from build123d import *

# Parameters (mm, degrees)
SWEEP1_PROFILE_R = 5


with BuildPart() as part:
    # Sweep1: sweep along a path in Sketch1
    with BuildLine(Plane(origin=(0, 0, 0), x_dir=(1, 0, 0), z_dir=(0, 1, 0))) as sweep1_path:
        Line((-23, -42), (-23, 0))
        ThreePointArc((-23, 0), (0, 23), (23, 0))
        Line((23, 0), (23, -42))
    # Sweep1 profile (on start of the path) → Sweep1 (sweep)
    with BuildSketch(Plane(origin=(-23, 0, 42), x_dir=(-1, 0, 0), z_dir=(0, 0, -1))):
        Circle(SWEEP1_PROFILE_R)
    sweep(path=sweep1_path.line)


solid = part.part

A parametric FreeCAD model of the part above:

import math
import FreeCAD as App
import Part
import Sketcher
from FreeCAD import Vector

doc = App.newDocument("Part")
body = doc.addObject("PartDesign::Body", "Body")

# Sketch on XY plane
sketch1 = body.newObject("Sketcher::SketchObject", "Sketch")
sketch1.AttachmentSupport = (doc.getObject("XY_Plane"), [""])
sketch1.MapMode = "FlatFace"
sketch1.AttachmentOffset = App.Placement(Vector(0, 0, 42), App.Rotation())
sketch1.addGeometry(Part.Circle(Vector(-23, 0, 0), Vector(0, 0, 1), 5), False)
sketch1.addConstraint([
    Sketcher.Constraint("PointOnObject", 0, 3, -1),
    Sketcher.Constraint("Diameter", 0, 10.0),
    Sketcher.Constraint("DistanceX", 0, 3, -1, 1, 23.0),
])

# Sketch on XZ plane
sketch2 = body.newObject("Sketcher::SketchObject", "Sketch001")
sketch2.AttachmentSupport = (doc.getObject("XZ_Plane"), [""])
sketch2.MapMode = "FlatFace"
sketch2.addGeometry([
    Part.LineSegment(Vector(-23, 42, 0), Vector(-23, 0, 0)),
    Part.ArcOfCircle(Part.Circle(Vector(0, 0, 0), Vector(0, 0, 1), 23), math.radians(180), math.radians(360)),
    Part.LineSegment(Vector(23, 0, 0), Vector(23, 42, 0)),
], False)
sketch2.addConstraint([
    Sketcher.Constraint("Tangent", 0, 2, 1, 1),
    Sketcher.Constraint("Tangent", 1, 2, 2, 1),
    Sketcher.Constraint("Vertical", 0),
    Sketcher.Constraint("Vertical", 2),
    Sketcher.Constraint("Coincident", 1, 3, -1, 1),
    Sketcher.Constraint("Horizontal", 0, 1, 2, 2),
    Sketcher.Constraint("Radius", 1, 23.0),
    Sketcher.Constraint("DistanceY", 0, 2, 0, 1, 42.0),
])
doc.recompute()

additivepipe = body.newObject("PartDesign::AdditivePipe", "AdditivePipe")
additivepipe.Profile = sketch1
additivepipe.Spine = (sketch2, ["Edge1", "Edge2", "Edge3"])

doc.recompute()
